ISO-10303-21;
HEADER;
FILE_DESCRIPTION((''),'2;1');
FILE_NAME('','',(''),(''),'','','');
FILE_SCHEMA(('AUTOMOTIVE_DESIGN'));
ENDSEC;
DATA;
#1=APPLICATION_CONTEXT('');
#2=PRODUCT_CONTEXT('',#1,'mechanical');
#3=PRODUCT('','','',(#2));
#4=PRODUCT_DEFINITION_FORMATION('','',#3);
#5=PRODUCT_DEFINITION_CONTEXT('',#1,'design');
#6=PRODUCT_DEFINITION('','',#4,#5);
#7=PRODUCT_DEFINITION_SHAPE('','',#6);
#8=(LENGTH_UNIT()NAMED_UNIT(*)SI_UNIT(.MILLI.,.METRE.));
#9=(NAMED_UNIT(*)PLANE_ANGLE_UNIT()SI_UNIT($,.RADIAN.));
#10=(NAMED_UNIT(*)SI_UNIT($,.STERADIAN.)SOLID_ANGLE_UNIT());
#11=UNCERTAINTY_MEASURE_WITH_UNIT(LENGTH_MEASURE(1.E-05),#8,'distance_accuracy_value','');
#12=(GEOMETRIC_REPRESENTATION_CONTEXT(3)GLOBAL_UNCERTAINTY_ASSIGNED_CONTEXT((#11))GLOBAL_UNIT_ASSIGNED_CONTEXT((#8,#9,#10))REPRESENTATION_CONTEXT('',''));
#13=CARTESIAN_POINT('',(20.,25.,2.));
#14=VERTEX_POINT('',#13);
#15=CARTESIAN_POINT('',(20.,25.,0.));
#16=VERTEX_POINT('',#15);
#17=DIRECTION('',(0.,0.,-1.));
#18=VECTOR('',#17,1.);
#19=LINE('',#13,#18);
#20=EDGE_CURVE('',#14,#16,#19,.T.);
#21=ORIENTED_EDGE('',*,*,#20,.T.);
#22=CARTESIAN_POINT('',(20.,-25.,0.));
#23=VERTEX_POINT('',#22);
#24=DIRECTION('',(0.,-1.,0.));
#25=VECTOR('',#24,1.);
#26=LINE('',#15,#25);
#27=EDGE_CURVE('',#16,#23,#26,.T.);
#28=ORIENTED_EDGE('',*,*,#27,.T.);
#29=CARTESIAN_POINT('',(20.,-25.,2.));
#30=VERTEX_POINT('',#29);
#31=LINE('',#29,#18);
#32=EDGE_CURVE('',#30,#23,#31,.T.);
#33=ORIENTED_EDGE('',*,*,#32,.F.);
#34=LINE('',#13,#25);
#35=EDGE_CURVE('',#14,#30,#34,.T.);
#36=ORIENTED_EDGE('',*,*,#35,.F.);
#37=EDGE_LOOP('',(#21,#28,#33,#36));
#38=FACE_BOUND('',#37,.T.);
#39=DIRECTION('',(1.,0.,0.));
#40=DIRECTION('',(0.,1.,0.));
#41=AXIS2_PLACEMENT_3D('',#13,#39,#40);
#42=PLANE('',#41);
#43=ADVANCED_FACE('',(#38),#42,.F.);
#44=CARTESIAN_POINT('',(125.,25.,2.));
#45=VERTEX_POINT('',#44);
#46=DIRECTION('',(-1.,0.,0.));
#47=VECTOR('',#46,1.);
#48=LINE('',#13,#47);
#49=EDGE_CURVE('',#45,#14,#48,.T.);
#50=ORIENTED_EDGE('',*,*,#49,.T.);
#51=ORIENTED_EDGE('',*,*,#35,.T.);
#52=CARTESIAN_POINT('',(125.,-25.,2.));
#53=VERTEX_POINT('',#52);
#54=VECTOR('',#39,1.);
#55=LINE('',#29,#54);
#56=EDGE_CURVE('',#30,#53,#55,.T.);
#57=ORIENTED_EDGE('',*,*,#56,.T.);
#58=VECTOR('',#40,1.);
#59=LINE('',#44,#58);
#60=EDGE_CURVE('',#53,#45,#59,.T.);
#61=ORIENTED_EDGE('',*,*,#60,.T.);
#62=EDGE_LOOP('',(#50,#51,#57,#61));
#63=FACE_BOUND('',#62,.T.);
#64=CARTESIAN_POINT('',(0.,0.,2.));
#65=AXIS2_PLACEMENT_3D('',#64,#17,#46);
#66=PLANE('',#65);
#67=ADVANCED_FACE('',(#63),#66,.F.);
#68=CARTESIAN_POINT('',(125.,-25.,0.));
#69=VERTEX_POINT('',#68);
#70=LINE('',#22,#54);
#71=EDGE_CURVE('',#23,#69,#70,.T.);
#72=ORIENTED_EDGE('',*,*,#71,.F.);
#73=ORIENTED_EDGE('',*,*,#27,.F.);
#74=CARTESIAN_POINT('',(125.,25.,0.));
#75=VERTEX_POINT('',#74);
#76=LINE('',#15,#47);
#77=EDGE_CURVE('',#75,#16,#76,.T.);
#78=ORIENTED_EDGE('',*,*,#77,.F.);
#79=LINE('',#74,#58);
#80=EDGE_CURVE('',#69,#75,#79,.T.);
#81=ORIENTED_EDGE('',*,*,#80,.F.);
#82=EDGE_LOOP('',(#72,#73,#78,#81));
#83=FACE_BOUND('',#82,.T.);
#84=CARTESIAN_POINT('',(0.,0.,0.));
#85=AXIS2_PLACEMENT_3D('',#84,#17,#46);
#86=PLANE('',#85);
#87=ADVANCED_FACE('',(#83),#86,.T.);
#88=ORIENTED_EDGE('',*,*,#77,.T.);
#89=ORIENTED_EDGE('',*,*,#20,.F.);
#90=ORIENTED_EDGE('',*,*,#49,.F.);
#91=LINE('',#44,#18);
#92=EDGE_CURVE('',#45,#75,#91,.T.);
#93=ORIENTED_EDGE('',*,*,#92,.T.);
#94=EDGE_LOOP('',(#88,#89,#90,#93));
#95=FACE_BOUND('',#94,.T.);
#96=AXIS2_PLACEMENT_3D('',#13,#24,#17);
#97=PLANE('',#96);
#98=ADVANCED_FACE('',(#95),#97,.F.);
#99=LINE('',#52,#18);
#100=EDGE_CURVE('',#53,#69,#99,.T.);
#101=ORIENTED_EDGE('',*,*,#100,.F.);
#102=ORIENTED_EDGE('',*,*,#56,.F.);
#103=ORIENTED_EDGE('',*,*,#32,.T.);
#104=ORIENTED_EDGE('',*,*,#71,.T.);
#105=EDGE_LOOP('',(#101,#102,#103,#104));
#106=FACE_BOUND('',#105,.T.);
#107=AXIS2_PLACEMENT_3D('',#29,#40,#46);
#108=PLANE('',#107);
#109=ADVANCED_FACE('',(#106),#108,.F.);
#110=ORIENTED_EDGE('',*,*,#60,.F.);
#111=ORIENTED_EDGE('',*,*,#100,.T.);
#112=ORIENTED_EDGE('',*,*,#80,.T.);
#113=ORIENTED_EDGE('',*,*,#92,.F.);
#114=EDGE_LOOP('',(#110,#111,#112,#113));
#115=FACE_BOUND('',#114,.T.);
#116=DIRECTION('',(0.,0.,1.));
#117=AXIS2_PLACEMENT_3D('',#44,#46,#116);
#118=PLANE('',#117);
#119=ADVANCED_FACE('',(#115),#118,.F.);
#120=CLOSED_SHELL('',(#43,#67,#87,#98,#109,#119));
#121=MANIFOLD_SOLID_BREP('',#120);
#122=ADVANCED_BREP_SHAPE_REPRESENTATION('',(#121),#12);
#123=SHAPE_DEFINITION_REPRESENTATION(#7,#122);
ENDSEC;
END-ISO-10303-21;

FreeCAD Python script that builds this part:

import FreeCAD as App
import Part
import Sketcher
from FreeCAD import Vector
Q = App.Units.Quantity


def add_polygon(sketch, points):
    """Adds a closed chain of lines whose ends are joined by coincident constraints."""
    first, n = sketch.GeometryCount, len(points)
    for a, b in zip(points, points[1:] + points[:1]):
        sketch.addGeometry(Part.LineSegment(App.Vector(*a, 0), App.Vector(*b, 0)), False)
    for i in range(n):
        sketch.addConstraint(Sketcher.Constraint("Coincident", first + i, 2, first + (i + 1) % n, 1))

doc = App.newDocument("Part")
body = doc.addObject("PartDesign::Body", "Body")

# Sketch on XY plane
sketch1 = body.newObject("Sketcher::SketchObject", "Sketch")
sketch1.AttachmentSupport = (doc.getObject("XY_Plane"), [""])
sketch1.MapMode = "FlatFace"
add_polygon(sketch1, [(20, 25), (20, -25), (125, -25), (125, 25)])  # lines 0-3
sketch1.addConstraint([
    Sketcher.Constraint("Vertical", 0),
    Sketcher.Constraint("Horizontal", 1),
    Sketcher.Constraint("Vertical", 2),
    Sketcher.Constraint("Horizontal", 3),
    Sketcher.Constraint("DistanceX", 1, 1, 1, 2, Q("105 mm")),
    Sketcher.Constraint("DistanceY", 0, 2, 0, 1, Q("50 mm")),
    Sketcher.Constraint("DistanceX", -1, 1, 0, 2, Q("20 mm")),
    Sketcher.Constraint("DistanceY", 0, 2, -1, 1, Q("25 mm")),
])
pad1 = body.newObject("PartDesign::Pad", "Pad")
pad1.Profile = sketch1
pad1.Length = 2

doc.recompute()
